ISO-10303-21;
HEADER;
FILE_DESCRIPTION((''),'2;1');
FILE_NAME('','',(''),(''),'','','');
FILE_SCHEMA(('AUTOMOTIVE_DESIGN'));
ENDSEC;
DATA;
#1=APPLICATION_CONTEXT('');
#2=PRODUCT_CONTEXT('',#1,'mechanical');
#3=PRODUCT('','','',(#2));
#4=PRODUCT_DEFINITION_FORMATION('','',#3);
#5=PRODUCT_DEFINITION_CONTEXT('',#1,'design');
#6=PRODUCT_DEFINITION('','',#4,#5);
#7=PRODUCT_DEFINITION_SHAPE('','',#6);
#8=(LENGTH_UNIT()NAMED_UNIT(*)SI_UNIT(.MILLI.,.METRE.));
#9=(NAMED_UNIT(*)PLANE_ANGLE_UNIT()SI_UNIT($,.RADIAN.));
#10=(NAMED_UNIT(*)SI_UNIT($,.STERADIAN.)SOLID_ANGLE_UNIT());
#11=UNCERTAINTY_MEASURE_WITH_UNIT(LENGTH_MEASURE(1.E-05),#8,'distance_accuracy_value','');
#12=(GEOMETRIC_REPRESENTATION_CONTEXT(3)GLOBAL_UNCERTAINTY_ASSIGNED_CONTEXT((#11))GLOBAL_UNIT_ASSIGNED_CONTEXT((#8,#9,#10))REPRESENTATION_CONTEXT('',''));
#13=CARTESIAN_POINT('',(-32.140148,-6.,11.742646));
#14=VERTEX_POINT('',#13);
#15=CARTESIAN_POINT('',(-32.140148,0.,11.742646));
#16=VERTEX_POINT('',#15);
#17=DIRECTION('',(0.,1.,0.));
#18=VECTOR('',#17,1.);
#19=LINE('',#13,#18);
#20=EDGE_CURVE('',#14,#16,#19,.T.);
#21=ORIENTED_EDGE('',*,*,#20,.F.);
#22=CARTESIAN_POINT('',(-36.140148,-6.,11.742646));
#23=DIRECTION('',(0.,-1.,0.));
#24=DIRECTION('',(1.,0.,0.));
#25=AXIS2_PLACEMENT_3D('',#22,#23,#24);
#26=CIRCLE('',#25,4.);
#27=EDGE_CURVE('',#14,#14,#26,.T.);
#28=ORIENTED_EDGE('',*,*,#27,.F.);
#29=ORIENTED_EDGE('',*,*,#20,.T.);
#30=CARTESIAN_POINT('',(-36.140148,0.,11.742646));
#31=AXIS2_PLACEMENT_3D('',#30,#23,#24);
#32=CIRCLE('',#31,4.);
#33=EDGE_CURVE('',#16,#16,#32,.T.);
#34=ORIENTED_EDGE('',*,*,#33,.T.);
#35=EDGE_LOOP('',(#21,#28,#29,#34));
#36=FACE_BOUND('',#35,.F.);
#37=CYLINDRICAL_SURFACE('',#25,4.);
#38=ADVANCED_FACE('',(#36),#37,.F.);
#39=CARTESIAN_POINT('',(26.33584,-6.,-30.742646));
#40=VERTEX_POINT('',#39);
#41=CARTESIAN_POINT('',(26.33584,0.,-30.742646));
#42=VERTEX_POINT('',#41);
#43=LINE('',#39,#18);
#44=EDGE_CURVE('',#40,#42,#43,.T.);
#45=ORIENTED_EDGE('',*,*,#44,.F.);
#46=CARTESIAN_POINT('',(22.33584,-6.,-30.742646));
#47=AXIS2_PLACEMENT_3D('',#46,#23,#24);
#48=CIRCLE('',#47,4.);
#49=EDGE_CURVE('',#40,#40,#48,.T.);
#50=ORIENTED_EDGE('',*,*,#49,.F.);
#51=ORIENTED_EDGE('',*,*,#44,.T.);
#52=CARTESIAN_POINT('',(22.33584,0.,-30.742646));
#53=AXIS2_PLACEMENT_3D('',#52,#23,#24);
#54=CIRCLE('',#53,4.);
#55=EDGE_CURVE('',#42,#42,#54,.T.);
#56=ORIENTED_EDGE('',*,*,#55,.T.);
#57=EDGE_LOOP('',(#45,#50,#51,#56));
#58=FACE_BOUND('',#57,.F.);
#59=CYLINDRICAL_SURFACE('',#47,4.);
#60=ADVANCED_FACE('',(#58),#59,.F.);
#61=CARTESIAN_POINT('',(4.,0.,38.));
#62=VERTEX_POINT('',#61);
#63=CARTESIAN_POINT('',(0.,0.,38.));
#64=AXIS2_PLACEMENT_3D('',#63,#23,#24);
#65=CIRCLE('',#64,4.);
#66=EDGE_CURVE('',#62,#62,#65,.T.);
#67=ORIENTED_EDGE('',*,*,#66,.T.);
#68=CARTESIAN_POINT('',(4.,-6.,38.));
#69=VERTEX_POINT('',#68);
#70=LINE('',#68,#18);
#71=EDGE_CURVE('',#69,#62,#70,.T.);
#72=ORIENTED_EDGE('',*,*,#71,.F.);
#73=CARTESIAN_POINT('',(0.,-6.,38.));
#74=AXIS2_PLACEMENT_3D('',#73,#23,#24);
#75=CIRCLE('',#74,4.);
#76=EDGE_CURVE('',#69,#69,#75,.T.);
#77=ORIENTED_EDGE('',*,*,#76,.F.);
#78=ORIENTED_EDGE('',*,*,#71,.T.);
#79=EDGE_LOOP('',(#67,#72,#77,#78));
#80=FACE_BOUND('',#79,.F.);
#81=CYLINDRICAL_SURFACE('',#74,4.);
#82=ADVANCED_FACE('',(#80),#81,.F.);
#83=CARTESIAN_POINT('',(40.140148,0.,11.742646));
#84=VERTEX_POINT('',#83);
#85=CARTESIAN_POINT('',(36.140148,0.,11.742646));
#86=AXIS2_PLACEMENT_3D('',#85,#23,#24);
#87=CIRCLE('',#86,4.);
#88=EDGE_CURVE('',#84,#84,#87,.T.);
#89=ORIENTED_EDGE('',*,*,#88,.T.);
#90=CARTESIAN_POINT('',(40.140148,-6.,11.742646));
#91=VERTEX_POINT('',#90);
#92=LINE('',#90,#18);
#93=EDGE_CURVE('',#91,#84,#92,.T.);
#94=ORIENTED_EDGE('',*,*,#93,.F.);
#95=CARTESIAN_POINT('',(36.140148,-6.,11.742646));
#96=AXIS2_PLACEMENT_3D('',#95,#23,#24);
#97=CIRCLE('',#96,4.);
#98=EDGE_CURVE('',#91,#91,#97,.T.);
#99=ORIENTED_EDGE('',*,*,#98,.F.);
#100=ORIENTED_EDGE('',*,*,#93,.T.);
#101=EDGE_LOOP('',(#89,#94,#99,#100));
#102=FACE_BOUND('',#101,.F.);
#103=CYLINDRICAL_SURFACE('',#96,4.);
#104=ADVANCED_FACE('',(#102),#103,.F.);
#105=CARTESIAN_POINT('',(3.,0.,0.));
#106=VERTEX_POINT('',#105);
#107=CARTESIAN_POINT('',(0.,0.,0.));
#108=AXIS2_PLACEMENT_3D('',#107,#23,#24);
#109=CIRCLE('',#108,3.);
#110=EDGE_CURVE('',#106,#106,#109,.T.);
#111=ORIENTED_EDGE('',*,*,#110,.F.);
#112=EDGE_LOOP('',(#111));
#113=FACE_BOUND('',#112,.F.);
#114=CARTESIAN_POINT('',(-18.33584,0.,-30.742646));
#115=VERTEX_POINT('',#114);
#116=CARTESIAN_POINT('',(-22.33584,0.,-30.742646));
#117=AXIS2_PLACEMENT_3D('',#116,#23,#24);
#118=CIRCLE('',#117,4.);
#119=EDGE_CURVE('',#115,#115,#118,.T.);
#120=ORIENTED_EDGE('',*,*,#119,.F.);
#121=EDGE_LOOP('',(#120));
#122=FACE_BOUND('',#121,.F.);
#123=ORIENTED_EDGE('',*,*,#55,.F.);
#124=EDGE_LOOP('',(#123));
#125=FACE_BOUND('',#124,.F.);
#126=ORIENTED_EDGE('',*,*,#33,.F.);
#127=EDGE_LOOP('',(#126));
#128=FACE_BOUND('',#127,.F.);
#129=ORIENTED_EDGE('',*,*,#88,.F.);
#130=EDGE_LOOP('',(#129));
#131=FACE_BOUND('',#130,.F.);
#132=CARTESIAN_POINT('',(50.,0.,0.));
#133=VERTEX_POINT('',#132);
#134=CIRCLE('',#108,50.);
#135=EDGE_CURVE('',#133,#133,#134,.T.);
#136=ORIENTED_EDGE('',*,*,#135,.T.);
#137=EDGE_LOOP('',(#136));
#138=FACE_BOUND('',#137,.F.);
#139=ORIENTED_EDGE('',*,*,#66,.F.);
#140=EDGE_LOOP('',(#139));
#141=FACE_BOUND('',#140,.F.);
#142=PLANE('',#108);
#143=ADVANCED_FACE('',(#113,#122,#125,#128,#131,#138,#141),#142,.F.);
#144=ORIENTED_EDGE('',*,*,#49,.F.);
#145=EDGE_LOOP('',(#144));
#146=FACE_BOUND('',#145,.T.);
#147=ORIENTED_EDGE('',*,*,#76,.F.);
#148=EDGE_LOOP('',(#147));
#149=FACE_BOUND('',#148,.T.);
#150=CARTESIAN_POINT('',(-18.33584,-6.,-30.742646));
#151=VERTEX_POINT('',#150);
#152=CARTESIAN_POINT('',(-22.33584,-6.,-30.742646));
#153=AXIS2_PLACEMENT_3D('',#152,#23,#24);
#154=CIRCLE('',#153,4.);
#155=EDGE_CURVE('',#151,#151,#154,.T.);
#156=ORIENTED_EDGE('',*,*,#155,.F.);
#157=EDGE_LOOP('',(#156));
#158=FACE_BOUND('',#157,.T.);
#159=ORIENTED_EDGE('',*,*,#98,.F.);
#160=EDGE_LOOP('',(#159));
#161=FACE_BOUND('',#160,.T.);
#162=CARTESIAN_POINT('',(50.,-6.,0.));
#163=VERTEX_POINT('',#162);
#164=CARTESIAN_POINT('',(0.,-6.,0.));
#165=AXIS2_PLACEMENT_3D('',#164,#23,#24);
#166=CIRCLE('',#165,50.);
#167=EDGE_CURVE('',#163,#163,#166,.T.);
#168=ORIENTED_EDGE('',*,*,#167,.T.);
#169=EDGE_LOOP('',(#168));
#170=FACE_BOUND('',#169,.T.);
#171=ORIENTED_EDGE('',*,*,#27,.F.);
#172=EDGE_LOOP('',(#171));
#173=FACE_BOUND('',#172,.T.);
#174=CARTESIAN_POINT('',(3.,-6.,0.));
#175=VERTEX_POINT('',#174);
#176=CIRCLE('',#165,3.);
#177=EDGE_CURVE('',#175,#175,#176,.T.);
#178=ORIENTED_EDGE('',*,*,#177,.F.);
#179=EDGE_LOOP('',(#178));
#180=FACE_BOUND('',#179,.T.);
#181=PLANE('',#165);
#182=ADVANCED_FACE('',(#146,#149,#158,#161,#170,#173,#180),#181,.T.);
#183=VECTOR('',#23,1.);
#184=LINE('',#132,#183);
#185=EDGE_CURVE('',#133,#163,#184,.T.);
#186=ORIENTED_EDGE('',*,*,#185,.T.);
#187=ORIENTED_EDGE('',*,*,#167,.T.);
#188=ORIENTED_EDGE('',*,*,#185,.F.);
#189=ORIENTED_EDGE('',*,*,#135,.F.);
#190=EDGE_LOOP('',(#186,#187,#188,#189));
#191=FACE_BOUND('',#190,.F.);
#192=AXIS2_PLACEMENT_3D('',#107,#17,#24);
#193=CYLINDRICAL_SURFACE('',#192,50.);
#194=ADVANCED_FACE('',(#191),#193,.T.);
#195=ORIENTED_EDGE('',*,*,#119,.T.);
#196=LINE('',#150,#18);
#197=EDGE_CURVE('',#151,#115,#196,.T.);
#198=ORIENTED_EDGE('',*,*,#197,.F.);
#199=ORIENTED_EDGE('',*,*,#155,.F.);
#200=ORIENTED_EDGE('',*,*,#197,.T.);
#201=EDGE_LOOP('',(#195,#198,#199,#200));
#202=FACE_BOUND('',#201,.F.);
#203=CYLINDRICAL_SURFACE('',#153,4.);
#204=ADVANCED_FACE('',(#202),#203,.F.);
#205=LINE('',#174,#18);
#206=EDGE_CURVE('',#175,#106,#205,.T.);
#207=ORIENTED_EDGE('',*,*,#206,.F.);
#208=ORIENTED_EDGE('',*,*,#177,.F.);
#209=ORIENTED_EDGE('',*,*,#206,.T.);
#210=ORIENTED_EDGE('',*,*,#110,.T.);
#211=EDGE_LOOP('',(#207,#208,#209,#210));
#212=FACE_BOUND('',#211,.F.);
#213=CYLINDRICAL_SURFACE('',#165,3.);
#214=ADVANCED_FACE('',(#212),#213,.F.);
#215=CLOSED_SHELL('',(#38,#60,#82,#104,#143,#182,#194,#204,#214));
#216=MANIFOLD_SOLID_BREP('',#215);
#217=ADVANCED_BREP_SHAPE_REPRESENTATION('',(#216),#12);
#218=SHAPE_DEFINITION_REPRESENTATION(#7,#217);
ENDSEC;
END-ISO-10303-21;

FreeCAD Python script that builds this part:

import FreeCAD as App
import Part
import Sketcher
from FreeCAD import Vector
Q = App.Units.Quantity

doc = App.newDocument("Part")
body = doc.addObject("PartDesign::Body", "Body")

sketch1 = body.newObject("Sketcher::SketchObject", "Sketch")
sketch1.AttachmentSupport = (doc.getObject("XZ_Plane"), [""])
sketch1.MapMode = "FlatFace"
sketch1.addGeometry(Part.Circle(Vector(0, 0, 0), Vector(0, 0, 1), 50), False)
sketch1.addConstraint([
    Sketcher.Constraint("Coincident", 0, 3, -1, 1),
    Sketcher.Constraint("Diameter", 0, Q("100 mm")),
])
pad1 = body.newObject("PartDesign::Pad", "Pad")
pad1.Profile = sketch1
pad1.Length = 6

sketch2 = body.newObject("Sketcher::SketchObject", "Sketch001")
sketch2.AttachmentSupport = (doc.getObject("XZ_Plane"), [""])
sketch2.MapMode = "FlatFace"
sketch2.AttachmentOffset = App.Placement(Vector(0, 0, 6), App.Rotation())
sketch2.addGeometry(Part.Circle(Vector(0, 0, 0), Vector(0, 0, 1), 3), False)
sketch2.addConstraint([
    Sketcher.Constraint("Coincident", 0, 3, -1, 1),
    Sketcher.Constraint("Diameter", 0, Q("6 mm")),
])
pocket1 = body.newObject("PartDesign::Pocket", "Pocket")
pocket1.Profile = sketch2
pocket1.Type = "ThroughAll"

sketch3 = body.newObject("Sketcher::SketchObject", "Sketch002")
sketch3.AttachmentSupport = (doc.getObject("XZ_Plane"), [""])
sketch3.MapMode = "FlatFace"
sketch3.AttachmentOffset = App.Placement(Vector(0, 0, 6), App.Rotation())
sketch3.addGeometry([
    Part.Circle(Vector(0, 38, 0), Vector(0, 0, 1), 4),
    Part.Circle(Vector(-22.3, -30.7, 0), Vector(0, 0, 1), 4),
    Part.Circle(Vector(-36.1, 11.7, 0), Vector(0, 0, 1), 4),
    Part.Circle(Vector(22.3, -30.7, 0), Vector(0, 0, 1), 4),
    Part.Circle(Vector(36.1, 11.7, 0), Vector(0, 0, 1), 4),
], False)
sketch3.addConstraint([
    Sketcher.Constraint("Equal", 0, 1),
    Sketcher.Constraint("Equal", 1, 2),
    Sketcher.Constraint("Equal", 2, 3),
    Sketcher.Constraint("Equal", 3, 4),
    Sketcher.Constraint("Symmetric", 1, 3, 3, 3, -2),
    Sketcher.Constraint("Symmetric", 2, 3, 4, 3, -2),
    Sketcher.Constraint("PointOnObject", 0, 3, -2),
    Sketcher.Constraint("Diameter", 0, Q("8 mm")),
    Sketcher.Constraint("DistanceY", -1, 1, 0, 3, Q("38 mm")),
    Sketcher.Constraint("DistanceX", 1, 3, -1, 1, Q("22.33584 mm")),
    Sketcher.Constraint("DistanceX", 2, 3, -1, 1, Q("36.140148 mm")),
    Sketcher.Constraint("DistanceY", 1, 3, -1, 1, Q("30.742646 mm")),
    Sketcher.Constraint("DistanceY", -1, 1, 2, 3, Q("11.742646 mm")),
])
pocket2 = body.newObject("PartDesign::Pocket", "Pocket001")
pocket2.Profile = sketch3
pocket2.Type = "ThroughAll"

doc.recompute()
